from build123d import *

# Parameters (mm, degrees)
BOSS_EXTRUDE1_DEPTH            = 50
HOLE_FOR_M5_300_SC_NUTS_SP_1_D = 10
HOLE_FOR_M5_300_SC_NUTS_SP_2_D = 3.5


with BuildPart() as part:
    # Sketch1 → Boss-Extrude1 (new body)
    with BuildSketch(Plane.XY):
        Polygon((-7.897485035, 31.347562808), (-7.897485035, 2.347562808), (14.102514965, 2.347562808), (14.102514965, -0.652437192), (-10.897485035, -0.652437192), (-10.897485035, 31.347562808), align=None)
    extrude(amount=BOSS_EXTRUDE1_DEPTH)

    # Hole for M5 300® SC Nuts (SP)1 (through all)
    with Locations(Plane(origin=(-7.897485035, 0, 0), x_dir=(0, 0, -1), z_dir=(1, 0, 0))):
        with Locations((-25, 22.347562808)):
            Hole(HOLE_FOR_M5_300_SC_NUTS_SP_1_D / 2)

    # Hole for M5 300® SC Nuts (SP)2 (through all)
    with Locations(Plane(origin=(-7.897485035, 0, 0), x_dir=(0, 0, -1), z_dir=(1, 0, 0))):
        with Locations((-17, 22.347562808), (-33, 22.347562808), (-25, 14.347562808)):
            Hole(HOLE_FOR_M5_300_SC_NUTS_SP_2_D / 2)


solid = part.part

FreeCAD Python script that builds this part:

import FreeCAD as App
import Part
import Sketcher
Q = App.Units.Quantity


def add_polygon(sketch, points):
    """Adds a closed chain of lines whose ends are joined by coincident constraints."""
    first, n = sketch.GeometryCount, len(points)
    for a, b in zip(points, points[1:] + points[:1]):
        sketch.addGeometry(Part.LineSegment(App.Vector(*a, 0), App.Vector(*b, 0)), False)
    for i in range(n):
        sketch.addConstraint(Sketcher.Constraint("Coincident", first + i, 2, first + (i + 1) % n, 1))

doc = App.newDocument("Part")
body = doc.addObject("PartDesign::Body", "Body")

sketch1 = body.newObject("Sketcher::SketchObject", "Sketch")
sketch1.AttachmentSupport = (doc.getObject("XY_Plane"), [""])
sketch1.MapMode = "FlatFace"
add_polygon(sketch1, [(-7.9, 2.3), (-7.9, 31.3), (-10.9, 31.3), (-10.9, -0.7), (14.1, -0.7), (14.1, 2.3)])
sketch1.addConstraint([
    Sketcher.Constraint("Vertical", 0),
    Sketcher.Constraint("Horizontal", 1),
    Sketcher.Constraint("Vertical", 2),
    Sketcher.Constraint("Horizontal", 3),
    Sketcher.Constraint("Vertical", 4),
    Sketcher.Constraint("Horizontal", 5),
    Sketcher.Constraint("Equal", 1, 4),
    Sketcher.Constraint("DistanceX", 1, 2, 1, 1, Q("3 mm")),
    Sketcher.Constraint("DistanceX", 3, 1, 3, 2, Q("25 mm")),
    Sketcher.Constraint("DistanceY", 0, 1, 0, 2, Q("29 mm")),
    Sketcher.Constraint("DistanceX", 0, 2, -1, 1, Q("7.897485 mm")),
    Sketcher.Constraint("DistanceY", -1, 1, 0, 2, Q("31.347563 mm")),
])
pad1 = body.newObject("PartDesign::Pad", "Pad")
pad1.Profile = sketch1
pad1.Length = 50

sketch2 = body.newObject("Sketcher::SketchObject", "Sketch001")
sketch2.AttachmentSupport = (doc.getObject("YZ_Plane"), [""])
sketch2.MapMode = "FlatFace"
sketch2.AttachmentOffset = App.Placement(App.Vector(0, 0, -7.897485), App.Rotation())
sketch2.addGeometry(Part.Circle(App.Vector(22, 25, 0), App.Vector(0, 0, 1), 5), False)
sketch2.addConstraint([
    Sketcher.Constraint("Diameter", 0, Q("10 mm")),
    Sketcher.Constraint("DistanceY", -1, 1, 0, 3, Q("25 mm")),
    Sketcher.Constraint("DistanceX", -1, 1, 0, 3, Q("22.347563 mm")),
])
doc.recompute()
hole = body.newObject("PartDesign::Hole", "Hole")
hole.Profile = sketch2
hole.ThreadType = "None"
hole.Diameter = 10
hole.DepthType = "ThroughAll"

sketch3 = body.newObject("Sketcher::SketchObject", "Sketch002")
sketch3.AttachmentSupport = (doc.getObject("YZ_Plane"), [""])
sketch3.MapMode = "FlatFace"
sketch3.AttachmentOffset = App.Placement(App.Vector(0, 0, -7.897485), App.Rotation())
sketch3.addGeometry([
    Part.Circle(App.Vector(22.3, 17, 0), App.Vector(0, 0, 1), 1.8),
    Part.Circle(App.Vector(22.3, 33, 0), App.Vector(0, 0, 1), 1.8),
    Part.Circle(App.Vector(14.3, 25, 0), App.Vector(0, 0, 1), 1.8),
], False)
sketch3.addConstraint([
    Sketcher.Constraint("Equal", 0, 1),
    Sketcher.Constraint("Equal", 1, 2),
    Sketcher.Constraint("Vertical", 0, 3, 1, 3),
    Sketcher.Constraint("Diameter", 0, Q("3.5 mm")),
    Sketcher.Constraint("DistanceY", -1, 1, 0, 3, Q("17 mm")),
    Sketcher.Constraint("DistanceY", -1, 1, 1, 3, Q("33 mm")),
    Sketcher.Constraint("DistanceY", -1, 1, 2, 3, Q("25 mm")),
    Sketcher.Constraint("DistanceX", 2, 3, 0, 3, Q("8 mm")),
    Sketcher.Constraint("DistanceX", -1, 1, 0, 3, Q("22.347563 mm")),
])
doc.recompute()
hole2 = body.newObject("PartDesign::Hole", "Hole001")
hole2.Profile = sketch3
hole2.ThreadType = "None"
hole2.Diameter = 3.5
hole2.DepthType = "ThroughAll"

doc.recompute()
